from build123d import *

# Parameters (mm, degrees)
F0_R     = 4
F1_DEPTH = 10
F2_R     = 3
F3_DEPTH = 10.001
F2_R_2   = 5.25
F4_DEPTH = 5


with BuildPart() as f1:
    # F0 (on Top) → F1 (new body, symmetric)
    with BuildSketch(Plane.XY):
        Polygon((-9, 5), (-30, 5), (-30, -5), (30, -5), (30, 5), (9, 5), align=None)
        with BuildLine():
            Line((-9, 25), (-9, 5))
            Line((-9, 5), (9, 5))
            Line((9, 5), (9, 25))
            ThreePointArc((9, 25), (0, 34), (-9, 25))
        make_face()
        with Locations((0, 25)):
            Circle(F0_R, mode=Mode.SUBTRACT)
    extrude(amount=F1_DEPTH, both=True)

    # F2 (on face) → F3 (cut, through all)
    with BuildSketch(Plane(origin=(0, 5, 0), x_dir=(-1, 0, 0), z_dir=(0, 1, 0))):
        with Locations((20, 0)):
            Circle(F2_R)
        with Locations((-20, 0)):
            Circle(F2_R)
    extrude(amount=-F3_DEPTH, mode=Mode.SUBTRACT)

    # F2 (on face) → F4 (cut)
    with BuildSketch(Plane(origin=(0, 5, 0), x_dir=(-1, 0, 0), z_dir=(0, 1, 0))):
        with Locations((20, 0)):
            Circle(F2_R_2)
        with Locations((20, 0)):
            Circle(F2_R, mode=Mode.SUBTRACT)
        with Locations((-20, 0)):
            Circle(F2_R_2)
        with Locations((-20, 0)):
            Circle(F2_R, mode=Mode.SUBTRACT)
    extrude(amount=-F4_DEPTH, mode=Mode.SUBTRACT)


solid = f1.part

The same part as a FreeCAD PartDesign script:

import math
import FreeCAD as App
import Part
import Sketcher
Q = App.Units.Quantity

doc = App.newDocument("Part")
body = doc.addObject("PartDesign::Body", "Body")

sketch1 = body.newObject("Sketcher::SketchObject", "Sketch")
sketch1.AttachmentSupport = (doc.getObject("XY_Plane"), [""])
sketch1.MapMode = "FlatFace"
sketch1.addGeometry(Part.LineSegment(App.Vector(-30, 5, 0), App.Vector(-30, -5, 0)), False)
sketch1.addGeometry(Part.LineSegment(App.Vector(-30, -5, 0), App.Vector(30, -5, 0)), False)
sketch1.addGeometry(Part.LineSegment(App.Vector(30, -5, 0), App.Vector(30, 5, 0)), False)
sketch1.addGeometry(Part.LineSegment(App.Vector(30, 5, 0), App.Vector(9, 5, 0)), False)
sketch1.addGeometry(Part.LineSegment(App.Vector(9, 5, 0), App.Vector(9, 25, 0)), False)
sketch1.addGeometry(Part.ArcOfCircle(Part.Circle(App.Vector(0, 25, 0), App.Vector(0, 0, 1), 9), math.radians(0), math.radians(180)), False)
sketch1.addGeometry(Part.LineSegment(App.Vector(-9, 25, 0), App.Vector(-9, 5, 0)), False)
sketch1.addGeometry(Part.LineSegment(App.Vector(-9, 5, 0), App.Vector(-30, 5, 0)), False)
sketch1.addGeometry(Part.Circle(App.Vector(0, 25, 0), App.Vector(0, 0, 1), 4), False)
sketch1.addConstraint(Sketcher.Constraint("Coincident", 0, 2, 1, 1))
sketch1.addConstraint(Sketcher.Constraint("Coincident", 1, 2, 2, 1))
sketch1.addConstraint(Sketcher.Constraint("Coincident", 2, 2, 3, 1))
sketch1.addConstraint(Sketcher.Constraint("Coincident", 3, 2, 4, 1))
sketch1.addConstraint(Sketcher.Constraint("Tangent", 4, 2, 5, 1))
sketch1.addConstraint(Sketcher.Constraint("Tangent", 5, 2, 6, 1))
sketch1.addConstraint(Sketcher.Constraint("Coincident", 6, 2, 7, 1))
sketch1.addConstraint(Sketcher.Constraint("Coincident", 7, 2, 0, 1))
sketch1.addConstraint(Sketcher.Constraint("Vertical", 0))
sketch1.addConstraint(Sketcher.Constraint("Horizontal", 1))
sketch1.addConstraint(Sketcher.Constraint("Vertical", 2))
sketch1.addConstraint(Sketcher.Constraint("Horizontal", 3))
sketch1.addConstraint(Sketcher.Constraint("Vertical", 4))
sketch1.addConstraint(Sketcher.Constraint("Vertical", 6))
sketch1.addConstraint(Sketcher.Constraint("Horizontal", 7))
sketch1.addConstraint(Sketcher.Constraint("Coincident", 8, 3, 5, 3))
sketch1.addConstraint(Sketcher.Constraint("Symmetric", 0, 2, 2, 2, -1, 1))
sketch1.addConstraint(Sketcher.Constraint("Symmetric", 3, 2, 6, 2, -2))
sketch1.addConstraint(Sketcher.Constraint("Diameter", 8, Q("8 mm")))
sketch1.addConstraint(Sketcher.Constraint("Radius", 5, Q("9 mm")))
sketch1.addConstraint(Sketcher.Constraint("DistanceX", 1, 1, 1, 2, Q("60 mm")))
sketch1.addConstraint(Sketcher.Constraint("DistanceY", 0, 2, 0, 1, Q("10 mm")))
sketch1.addConstraint(Sketcher.Constraint("DistanceY", 4, 1, 4, 2, Q("20 mm")))
pad1 = body.newObject("PartDesign::Pad", "Pad")
pad1.Profile = sketch1
pad1.Length = 20
pad1.Midplane = True

sketch2 = body.newObject("Sketcher::SketchObject", "Sketch001")
sketch2.AttachmentSupport = (doc.getObject("XZ_Plane"), [""])
sketch2.MapMode = "FlatFace"
sketch2.AttachmentOffset = App.Placement(App.Vector(0, 0, -5), App.Rotation())
sketch2.addGeometry(Part.Circle(App.Vector(-20, 0, 0), App.Vector(0, 0, 1), 3), False)
sketch2.addGeometry(Part.Circle(App.Vector(20, 0, 0), App.Vector(0, 0, 1), 3), False)
sketch2.addConstraint(Sketcher.Constraint("Equal", 0, 1))
sketch2.addConstraint(Sketcher.Constraint("Symmetric", 0, 3, 1, 3, -1, 1))
sketch2.addConstraint(Sketcher.Constraint("PointOnObject", 0, 3, -1))
sketch2.addConstraint(Sketcher.Constraint("Diameter", 0, Q("6 mm")))
sketch2.addConstraint(Sketcher.Constraint("DistanceX", 0, 3, -1, 1, Q("20 mm")))
pocket1 = body.newObject("PartDesign::Pocket", "Pocket")
pocket1.Profile = sketch2
pocket1.Type = "ThroughAll"
pocket1.Reversed = True

sketch3 = body.newObject("Sketcher::SketchObject", "Sketch002")
sketch3.AttachmentSupport = (doc.getObject("XZ_Plane"), [""])
sketch3.MapMode = "FlatFace"
sketch3.AttachmentOffset = App.Placement(App.Vector(0, 0, -5), App.Rotation())
sketch3.addGeometry(Part.Circle(App.Vector(-20, 0, 0), App.Vector(0, 0, 1), 5.2), False)
sketch3.addGeometry(Part.Circle(App.Vector(-20, 0, 0), App.Vector(0, 0, 1), 3), False)
sketch3.addGeometry(Part.Circle(App.Vector(20, 0, 0), App.Vector(0, 0, 1), 5.2), False)
sketch3.addGeometry(Part.Circle(App.Vector(20, 0, 0), App.Vector(0, 0, 1), 3), False)
sketch3.addConstraint(Sketcher.Constraint("Coincident", 1, 3, 0, 3))
sketch3.addConstraint(Sketcher.Constraint("Coincident", 3, 3, 2, 3))
sketch3.addConstraint(Sketcher.Constraint("Equal", 0, 2))
sketch3.addConstraint(Sketcher.Constraint("Equal", 1, 3))
sketch3.addConstraint(Sketcher.Constraint("Symmetric", 0, 3, 2, 3, -1, 1))
sketch3.addConstraint(Sketcher.Constraint("PointOnObject", 0, 3, -1))
sketch3.addConstraint(Sketcher.Constraint("Diameter", 1, Q("6 mm")))
sketch3.addConstraint(Sketcher.Constraint("Diameter", 0, Q("10.5 mm")))
sketch3.addConstraint(Sketcher.Constraint("DistanceX", 0, 3, -1, 1, Q("20 mm")))
pocket2 = body.newObject("PartDesign::Pocket", "Pocket001")
pocket2.Profile = sketch3
pocket2.Length = 5
pocket2.Reversed = True

doc.recompute()
